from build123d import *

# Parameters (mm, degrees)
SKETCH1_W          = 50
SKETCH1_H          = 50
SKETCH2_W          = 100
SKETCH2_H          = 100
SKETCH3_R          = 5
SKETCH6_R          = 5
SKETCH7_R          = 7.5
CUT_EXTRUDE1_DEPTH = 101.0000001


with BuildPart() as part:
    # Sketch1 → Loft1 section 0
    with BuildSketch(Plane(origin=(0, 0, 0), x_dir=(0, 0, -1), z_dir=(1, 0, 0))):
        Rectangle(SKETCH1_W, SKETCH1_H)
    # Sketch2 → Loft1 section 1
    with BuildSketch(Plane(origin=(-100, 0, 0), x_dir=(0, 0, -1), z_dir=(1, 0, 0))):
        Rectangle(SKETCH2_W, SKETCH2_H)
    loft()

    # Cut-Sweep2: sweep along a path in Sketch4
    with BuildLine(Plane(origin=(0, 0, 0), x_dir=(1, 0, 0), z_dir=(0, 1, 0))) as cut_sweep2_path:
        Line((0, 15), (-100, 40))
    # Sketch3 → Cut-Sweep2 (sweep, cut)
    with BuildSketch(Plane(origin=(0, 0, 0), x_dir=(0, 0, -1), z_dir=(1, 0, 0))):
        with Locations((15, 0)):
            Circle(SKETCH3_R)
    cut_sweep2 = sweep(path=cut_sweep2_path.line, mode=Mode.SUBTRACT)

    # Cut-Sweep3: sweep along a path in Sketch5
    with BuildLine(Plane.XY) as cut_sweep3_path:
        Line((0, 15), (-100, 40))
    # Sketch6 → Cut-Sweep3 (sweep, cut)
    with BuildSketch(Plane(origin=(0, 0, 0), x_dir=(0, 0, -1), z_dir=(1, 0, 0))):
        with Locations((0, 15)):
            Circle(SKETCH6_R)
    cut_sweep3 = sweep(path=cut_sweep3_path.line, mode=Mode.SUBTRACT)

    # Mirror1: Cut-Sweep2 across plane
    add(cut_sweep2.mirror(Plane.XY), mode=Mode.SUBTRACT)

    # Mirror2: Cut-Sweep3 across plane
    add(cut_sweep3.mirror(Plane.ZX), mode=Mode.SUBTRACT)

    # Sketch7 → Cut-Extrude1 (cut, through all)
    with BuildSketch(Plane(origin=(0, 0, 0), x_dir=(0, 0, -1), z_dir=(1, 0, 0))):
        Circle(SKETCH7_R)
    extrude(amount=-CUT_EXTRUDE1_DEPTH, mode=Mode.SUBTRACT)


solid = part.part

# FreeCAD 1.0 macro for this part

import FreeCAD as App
import Part
import Sketcher
from FreeCAD import Vector
Q = App.Units.Quantity

doc = App.newDocument("Part")
params = doc.addObject("Spreadsheet::Sheet", "Params")
for row, (alias, value) in enumerate([
    ("sketch1_width", "50 mm"),
    ("sketch2_width", "100 mm"),
    ("sketch3_diameter", "10 mm"),
    ("sketch5_diameter", "10 mm"),
    ("sketch7_diameter", "15 mm"),
], start=1):
    params.set(f"A{row}", alias)
    params.set(f"B{row}", "=" + value)
    params.setAlias(f"B{row}", alias)

body = doc.addObject("PartDesign::Body", "Body")

sketch1 = body.newObject("Sketcher::SketchObject", "Sketch")
sketch1.AttachmentSupport = (doc.getObject("YZ_Plane"), [""])
sketch1.MapMode = "FlatFace"
sketch1.addGeometry(Part.LineSegment(Vector(25, 25, 0), Vector(-25, 25, 0)), False)
sketch1.addGeometry(Part.LineSegment(Vector(-25, 25, 0), Vector(-25, -25, 0)), False)
sketch1.addGeometry(Part.LineSegment(Vector(-25, -25, 0), Vector(25, -25, 0)), False)
sketch1.addGeometry(Part.LineSegment(Vector(25, -25, 0), Vector(25, 25, 0)), False)
sketch1.addConstraint(Sketcher.Constraint("Coincident", 0, 2, 1, 1))
sketch1.addConstraint(Sketcher.Constraint("Coincident", 1, 2, 2, 1))
sketch1.addConstraint(Sketcher.Constraint("Coincident", 2, 2, 3, 1))
sketch1.addConstraint(Sketcher.Constraint("Coincident", 3, 2, 0, 1))
sketch1.addConstraint(Sketcher.Constraint("Horizontal", 0))
sketch1.addConstraint(Sketcher.Constraint("Vertical", 1))
sketch1.addConstraint(Sketcher.Constraint("Horizontal", 2))
sketch1.addConstraint(Sketcher.Constraint("Vertical", 3))
sketch1.addConstraint(Sketcher.Constraint("Symmetric", 0, 2, 2, 2, -1, 1))
sketch1.addConstraint(Sketcher.Constraint("Equal", 2, 1))
sketch1.addConstraint(Sketcher.Constraint("DistanceX", 0, 2, 0, 1, Q("50 mm")))
sketch1.setExpression("Constraints[10]", "Params.sketch1_width")

sketch2 = body.newObject("Sketcher::SketchObject", "Sketch001")
sketch2.AttachmentSupport = (doc.getObject("YZ_Plane"), [""])
sketch2.MapMode = "FlatFace"
sketch2.AttachmentOffset = App.Placement(Vector(0, 0, -100), App.Rotation())
sketch2.addGeometry(Part.LineSegment(Vector(50, 50, 0), Vector(-50, 50, 0)), False)
sketch2.addGeometry(Part.LineSegment(Vector(-50, 50, 0), Vector(-50, -50, 0)), False)
sketch2.addGeometry(Part.LineSegment(Vector(-50, -50, 0), Vector(50, -50, 0)), False)
sketch2.addGeometry(Part.LineSegment(Vector(50, -50, 0), Vector(50, 50, 0)), False)
sketch2.addConstraint(Sketcher.Constraint("Coincident", 0, 2, 1, 1))
sketch2.addConstraint(Sketcher.Constraint("Coincident", 1, 2, 2, 1))
sketch2.addConstraint(Sketcher.Constraint("Coincident", 2, 2, 3, 1))
sketch2.addConstraint(Sketcher.Constraint("Coincident", 3, 2, 0, 1))
sketch2.addConstraint(Sketcher.Constraint("Horizontal", 0))
sketch2.addConstraint(Sketcher.Constraint("Vertical", 1))
sketch2.addConstraint(Sketcher.Constraint("Horizontal", 2))
sketch2.addConstraint(Sketcher.Constraint("Vertical", 3))
sketch2.addConstraint(Sketcher.Constraint("Symmetric", 0, 2, 2, 2, -1, 1))
sketch2.addConstraint(Sketcher.Constraint("Equal", 2, 1))
sketch2.addConstraint(Sketcher.Constraint("DistanceX", 0, 2, 0, 1, Q("100 mm")))
sketch2.setExpression("Constraints[10]", "Params.sketch2_width")

additiveloft = body.newObject("PartDesign::AdditiveLoft", "AdditiveLoft")
additiveloft.Profile = sketch1
additiveloft.Sections = [sketch2]

sketch3 = body.newObject("Sketcher::SketchObject", "Sketch002")
sketch3.AttachmentSupport = (doc.getObject("YZ_Plane"), [""])
sketch3.MapMode = "FlatFace"
sketch3.addGeometry(Part.Circle(Vector(0, -15, 0), Vector(0, 0, 1), 5), False)
sketch3.addConstraint(Sketcher.Constraint("PointOnObject", 0, 3, -2))
sketch3.addConstraint(Sketcher.Constraint("Diameter", 0, Q("10 mm")))
sketch3.addConstraint(Sketcher.Constraint("DistanceY", 0, 3, -1, 1, Q("15 mm")))
sketch3.setExpression("Constraints[1]", "Params.sketch3_diameter")

sketch4 = body.newObject("Sketcher::SketchObject", "Sketch003")
sketch4.Placement = App.Placement(Vector(3.529412, 0, -14.117647), App.Rotation(Vector(-0.9701425, 0, -0.242535625), Vector(0, 1, 0), Vector(0.242535625, 0, -0.9701425), "ZXY"))
sketch4.addGeometry(Part.LineSegment(Vector(4, 0, 0), Vector(107, 0, 0)), False)
sketch4.addConstraint(Sketcher.Constraint("Horizontal", 0))
sketch4.addConstraint(Sketcher.Constraint("PointOnObject", 0, 1, -1))
sketch4.addConstraint(Sketcher.Constraint("DistanceX", 0, 1, 0, 2, Q("103.077641 mm")))
sketch4.addConstraint(Sketcher.Constraint("DistanceX", -1, 1, 0, 1, Q("3.638034 mm")))
doc.recompute()

subtractivepipe = body.newObject("PartDesign::SubtractivePipe", "SubtractivePipe")
subtractivepipe.Profile = sketch3
subtractivepipe.Spine = (sketch4, ["Edge1"])

sketch5 = body.newObject("Sketcher::SketchObject", "Sketch004")
sketch5.AttachmentSupport = (doc.getObject("YZ_Plane"), [""])
sketch5.MapMode = "FlatFace"
sketch5.addGeometry(Part.Circle(Vector(15, 0, 0), Vector(0, 0, 1), 5), False)
sketch5.addConstraint(Sketcher.Constraint("PointOnObject", 0, 3, -1))
sketch5.addConstraint(Sketcher.Constraint("Diameter", 0, Q("10 mm")))
sketch5.addConstraint(Sketcher.Constraint("DistanceX", -1, 1, 0, 3, Q("15 mm")))
sketch5.setExpression("Constraints[1]", "Params.sketch5_diameter")

sketch6 = body.newObject("Sketcher::SketchObject", "Sketch005")
sketch6.Placement = App.Placement(Vector(3.529412, 14.117647, 0), App.Rotation(Vector(-0.9701425, 0.242535625, 0), Vector(0, 0, 1), Vector(0.242535625, 0.9701425, 0), "ZXY"))
sketch6.addGeometry(Part.LineSegment(Vector(4, 0, 0), Vector(107, 0, 0)), False)
sketch6.addConstraint(Sketcher.Constraint("Horizontal", 0))
sketch6.addConstraint(Sketcher.Constraint("PointOnObject", 0, 1, -1))
sketch6.addConstraint(Sketcher.Constraint("DistanceX", 0, 1, 0, 2, Q("103.077641 mm")))
sketch6.addConstraint(Sketcher.Constraint("DistanceX", -1, 1, 0, 1, Q("3.638034 mm")))
doc.recompute()

subtractivepipe2 = body.newObject("PartDesign::SubtractivePipe", "SubtractivePipe001")
subtractivepipe2.Profile = sketch5
subtractivepipe2.Spine = (sketch6, ["Edge1"])
doc.recompute()

mirrored = body.newObject("PartDesign::Mirrored", "Mirrored")
mirrored.Originals = [subtractivepipe]
mirrored.MirrorPlane = (doc.getObject("XY_Plane"), [""])
body.Tip = mirrored
doc.recompute()

mirrored2 = body.newObject("PartDesign::Mirrored", "Mirrored001")
mirrored2.Originals = [subtractivepipe2]
mirrored2.MirrorPlane = (doc.getObject("XZ_Plane"), [""])
body.Tip = mirrored2

sketch7 = body.newObject("Sketcher::SketchObject", "Sketch006")
sketch7.AttachmentSupport = (doc.getObject("YZ_Plane"), [""])
sketch7.MapMode = "FlatFace"
sketch7.addGeometry(Part.Circle(Vector(0, 0, 0), Vector(0, 0, 1), 8), False)
sketch7.addConstraint(Sketcher.Constraint("Coincident", 0, 3, -1, 1))
sketch7.addConstraint(Sketcher.Constraint("Diameter", 0, Q("15 mm")))
sketch7.setExpression("Constraints[1]", "Params.sketch7_diameter")
pocket1 = body.newObject("PartDesign::Pocket", "Pocket")
pocket1.Profile = sketch7
pocket1.Type = "ThroughAll"

doc.recompute()
